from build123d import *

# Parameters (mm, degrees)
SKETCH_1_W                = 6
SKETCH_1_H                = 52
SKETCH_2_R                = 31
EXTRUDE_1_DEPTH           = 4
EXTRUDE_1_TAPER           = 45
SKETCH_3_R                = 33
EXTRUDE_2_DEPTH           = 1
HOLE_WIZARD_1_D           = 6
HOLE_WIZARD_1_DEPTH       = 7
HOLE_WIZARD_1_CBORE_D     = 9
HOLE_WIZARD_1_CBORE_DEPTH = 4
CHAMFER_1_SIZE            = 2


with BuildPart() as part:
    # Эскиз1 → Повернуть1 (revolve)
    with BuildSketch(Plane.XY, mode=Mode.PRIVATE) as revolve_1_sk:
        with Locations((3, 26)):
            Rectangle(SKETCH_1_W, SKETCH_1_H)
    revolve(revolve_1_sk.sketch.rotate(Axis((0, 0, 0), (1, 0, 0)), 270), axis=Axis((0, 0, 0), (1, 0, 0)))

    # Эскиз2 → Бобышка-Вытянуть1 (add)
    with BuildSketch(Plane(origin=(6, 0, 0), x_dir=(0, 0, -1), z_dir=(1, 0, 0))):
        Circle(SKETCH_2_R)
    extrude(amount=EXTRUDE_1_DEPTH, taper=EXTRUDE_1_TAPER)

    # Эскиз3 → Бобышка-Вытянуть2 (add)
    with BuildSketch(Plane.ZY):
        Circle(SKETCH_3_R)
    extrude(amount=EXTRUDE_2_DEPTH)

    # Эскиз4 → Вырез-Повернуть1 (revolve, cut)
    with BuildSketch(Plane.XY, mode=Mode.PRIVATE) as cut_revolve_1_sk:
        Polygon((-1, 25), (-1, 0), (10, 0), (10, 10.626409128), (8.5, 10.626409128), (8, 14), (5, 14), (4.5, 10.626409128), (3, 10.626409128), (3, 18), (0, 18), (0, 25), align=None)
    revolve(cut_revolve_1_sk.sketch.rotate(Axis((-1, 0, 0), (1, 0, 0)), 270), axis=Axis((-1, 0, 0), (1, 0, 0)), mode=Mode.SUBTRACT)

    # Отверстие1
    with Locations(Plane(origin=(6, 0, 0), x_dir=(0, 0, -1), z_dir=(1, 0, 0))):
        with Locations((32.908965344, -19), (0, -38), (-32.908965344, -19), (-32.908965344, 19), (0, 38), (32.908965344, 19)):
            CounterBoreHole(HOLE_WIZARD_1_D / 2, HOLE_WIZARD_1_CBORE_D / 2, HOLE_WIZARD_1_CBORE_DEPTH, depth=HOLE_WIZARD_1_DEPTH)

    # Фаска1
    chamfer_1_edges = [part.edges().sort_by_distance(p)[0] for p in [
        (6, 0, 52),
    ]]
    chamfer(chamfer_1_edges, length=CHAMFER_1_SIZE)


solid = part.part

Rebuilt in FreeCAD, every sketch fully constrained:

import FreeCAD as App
import Part
import Sketcher
from FreeCAD import Vector
Q = App.Units.Quantity


def edges_at(feature, points):
    """Names of the edges that pass closest to the given points."""
    edges = feature.Shape.Edges
    near = lambda p: min(range(len(edges)), key=lambda i: edges[i].distToShape(Part.Vertex(*p))[0])
    return sorted({f"Edge{near(p) + 1}" for p in points})


def add_polygon(sketch, points):
    """Adds a closed chain of lines whose ends are joined by coincident constraints."""
    first, n = sketch.GeometryCount, len(points)
    for a, b in zip(points, points[1:] + points[:1]):
        sketch.addGeometry(Part.LineSegment(App.Vector(*a, 0), App.Vector(*b, 0)), False)
    for i in range(n):
        sketch.addConstraint(Sketcher.Constraint("Coincident", first + i, 2, first + (i + 1) % n, 1))

doc = App.newDocument("Part")
body = doc.addObject("PartDesign::Body", "Body")

# Sketch on XY plane
sketch1 = doc.addObject("Sketcher::SketchObject", "Sketch")
body.addObject(sketch1)
sketch1.AttachmentSupport = (doc.XY_Plane, [""])
sketch1.MapMode = "FlatFace"
add_polygon(sketch1, [(0, 52), (0, 0), (6, 0), (6, 52)])  # lines 0-3
sketch1.addConstraint([
    Sketcher.Constraint("Vertical", 0),
    Sketcher.Constraint("Horizontal", 1),
    Sketcher.Constraint("Vertical", 2),
    Sketcher.Constraint("Horizontal", 3),
    Sketcher.Constraint("Coincident", 0, 2, -1, 1),
    Sketcher.Constraint("DistanceX", 1, 1, 1, 2, Q("6 mm")),
    Sketcher.Constraint("DistanceY", 0, 2, 0, 1, Q("52 mm")),
])
revolution = doc.addObject("PartDesign::Revolution", "Revolution")
body.addObject(revolution)
revolution.Profile = sketch1
revolution.ReferenceAxis = (sketch1, ["H_Axis"])
revolution.Angle = 360

# Sketch on YZ plane
sketch2 = doc.addObject("Sketcher::SketchObject", "Sketch001")
body.addObject(sketch2)
sketch2.AttachmentSupport = (doc.YZ_Plane, [""])
sketch2.MapMode = "FlatFace"
sketch2.AttachmentOffset = App.Placement(Vector(0, 0, 6), App.Rotation())
sketch2.addGeometry(Part.Circle(Vector(0, 0, 0), Vector(0, 0, 1), 31), False)
sketch2.addConstraint([
    Sketcher.Constraint("Coincident", 0, 3, -1, 1),
    Sketcher.Constraint("Diameter", 0, Q("62 mm")),
])
pad1 = doc.addObject("PartDesign::Pad", "Pad")
body.addObject(pad1)
pad1.Profile = sketch2
pad1.Length = 4
pad1.TaperAngle = -45

# Sketch on YZ plane
sketch3 = doc.addObject("Sketcher::SketchObject", "Sketch002")
body.addObject(sketch3)
sketch3.AttachmentSupport = (doc.YZ_Plane, [""])
sketch3.MapMode = "FlatFace"
sketch3.addGeometry(Part.Circle(Vector(0, 0, 0), Vector(0, 0, 1), 33), False)
sketch3.addConstraint([
    Sketcher.Constraint("Coincident", 0, 3, -1, 1),
    Sketcher.Constraint("Diameter", 0, Q("66 mm")),
])
pad2 = doc.addObject("PartDesign::Pad", "Pad001")
body.addObject(pad2)
pad2.Profile = sketch3
pad2.Length = 1
pad2.Reversed = True

# Sketch on XY plane
sketch4 = doc.addObject("Sketcher::SketchObject", "Sketch003")
body.addObject(sketch4)
sketch4.AttachmentSupport = (doc.XY_Plane, [""])
sketch4.MapMode = "FlatFace"
add_polygon(sketch4, [(-1, 25), (-1, 0), (10, 0), (10, 10.6), (8.5, 10.6), (8, 14), (5, 14), (4.5, 10.6), (3, 10.6), (3, 18), (0, 18), (0, 25)])  # lines 0-11
sketch4.addConstraint([
    Sketcher.Constraint("Vertical", 0),
    Sketcher.Constraint("Horizontal", 1),
    Sketcher.Constraint("Vertical", 2),
    Sketcher.Constraint("Horizontal", 3),
    Sketcher.Constraint("Horizontal", 5),
    Sketcher.Constraint("Horizontal", 7),
    Sketcher.Constraint("Vertical", 8),
    Sketcher.Constraint("Horizontal", 9),
    Sketcher.Constraint("Vertical", 10),
    Sketcher.Constraint("Horizontal", 11),
    Sketcher.Constraint("PointOnObject", 0, 2, -1),
    Sketcher.Constraint("PointOnObject", 9, 2, -2),
    Sketcher.Constraint("Horizontal", 3, 2, 6, 2),
    Sketcher.Constraint("Equal", 3, 7),
    Sketcher.Constraint("Equal", 5, 9),
    Sketcher.Constraint("Equal", 4, 6),
    Sketcher.Constraint("DistanceX", 1, 1, 1, 2, Q("11 mm")),
    Sketcher.Constraint("DistanceX", 5, 2, 5, 1, Q("3 mm")),
    Sketcher.Constraint("DistanceX", 11, 2, 11, 1, Q("1 mm")),
    Sketcher.Constraint("DistanceY", 0, 2, 0, 1, Q("25 mm")),
    Sketcher.Constraint("DistanceY", 10, 1, 10, 2, Q("7 mm")),
    Sketcher.Constraint("DistanceX", 3, 2, 3, 1, Q("1.5 mm")),
    Sketcher.Constraint("DistanceY", -1, 1, 4, 2, Q("14 mm")),
    Sketcher.Constraint("DistanceY", 2, 1, 2, 2, Q("10.626409 mm")),
])
groove = doc.addObject("PartDesign::Groove", "Groove")
body.addObject(groove)
groove.Profile = sketch4
groove.ReferenceAxis = (sketch4, ["H_Axis"])
groove.Angle = 360

# Sketch on YZ plane
sketch5 = doc.addObject("Sketcher::SketchObject", "Sketch004")
body.addObject(sketch5)
sketch5.AttachmentSupport = (doc.YZ_Plane, [""])
sketch5.MapMode = "FlatFace"
sketch5.AttachmentOffset = App.Placement(Vector(0, 0, 6), App.Rotation())
sketch5.addGeometry([
    Part.Circle(Vector(-19, -32.9, 0), Vector(0, 0, 1), 3),  # 0
    Part.Circle(Vector(-38, 0, 0), Vector(0, 0, 1), 3),  # 1
    Part.Circle(Vector(-19, 32.9, 0), Vector(0, 0, 1), 3),  # 2
    Part.Circle(Vector(19, 32.9, 0), Vector(0, 0, 1), 3),  # 3
    Part.Circle(Vector(38, 0, 0), Vector(0, 0, 1), 3),  # 4
    Part.Circle(Vector(19, -32.9, 0), Vector(0, 0, 1), 3),  # 5
], False)
sketch5.addConstraint([
    Sketcher.Constraint("Equal", 0, 1),
    Sketcher.Constraint("Equal", 1, 2),
    Sketcher.Constraint("Equal", 2, 3),
    Sketcher.Constraint("Equal", 3, 4),
    Sketcher.Constraint("Equal", 4, 5),
    Sketcher.Constraint("Symmetric", 0, 3, 3, 3, -1, 1),
    Sketcher.Constraint("Symmetric", 1, 3, 4, 3, -1, 1),
    Sketcher.Constraint("Symmetric", 2, 3, 5, 3, -1, 1),
    Sketcher.Constraint("Symmetric", 2, 3, 3, 3, -2),
    Sketcher.Constraint("PointOnObject", 1, 3, -1),
    Sketcher.Constraint("Diameter", 0, Q("6 mm")),
    Sketcher.Constraint("DistanceX", 0, 3, -1, 1, Q("19 mm")),
    Sketcher.Constraint("DistanceX", 1, 3, -1, 1, Q("38 mm")),
    Sketcher.Constraint("DistanceY", 0, 3, 2, 3, Q("65.817931 mm")),
])
doc.recompute()
hole = doc.addObject("PartDesign::Hole", "Hole")
body.addObject(hole)
hole.Profile = sketch5
hole.ThreadType = "None"
hole.Diameter = 6
hole.DepthType = "Dimension"
hole.Depth = 7
hole.DrillPoint = "Flat"
hole.HoleCutType = "Counterbore"
hole.HoleCutDiameter = 9
hole.HoleCutDepth = 4
doc.recompute()

chamfer = doc.addObject("PartDesign::Chamfer", "Chamfer")
body.addObject(chamfer)
chamfer.Base = (hole, edges_at(hole, [(6, 0, 52)]))
chamfer.Size = 2

doc.recompute()
